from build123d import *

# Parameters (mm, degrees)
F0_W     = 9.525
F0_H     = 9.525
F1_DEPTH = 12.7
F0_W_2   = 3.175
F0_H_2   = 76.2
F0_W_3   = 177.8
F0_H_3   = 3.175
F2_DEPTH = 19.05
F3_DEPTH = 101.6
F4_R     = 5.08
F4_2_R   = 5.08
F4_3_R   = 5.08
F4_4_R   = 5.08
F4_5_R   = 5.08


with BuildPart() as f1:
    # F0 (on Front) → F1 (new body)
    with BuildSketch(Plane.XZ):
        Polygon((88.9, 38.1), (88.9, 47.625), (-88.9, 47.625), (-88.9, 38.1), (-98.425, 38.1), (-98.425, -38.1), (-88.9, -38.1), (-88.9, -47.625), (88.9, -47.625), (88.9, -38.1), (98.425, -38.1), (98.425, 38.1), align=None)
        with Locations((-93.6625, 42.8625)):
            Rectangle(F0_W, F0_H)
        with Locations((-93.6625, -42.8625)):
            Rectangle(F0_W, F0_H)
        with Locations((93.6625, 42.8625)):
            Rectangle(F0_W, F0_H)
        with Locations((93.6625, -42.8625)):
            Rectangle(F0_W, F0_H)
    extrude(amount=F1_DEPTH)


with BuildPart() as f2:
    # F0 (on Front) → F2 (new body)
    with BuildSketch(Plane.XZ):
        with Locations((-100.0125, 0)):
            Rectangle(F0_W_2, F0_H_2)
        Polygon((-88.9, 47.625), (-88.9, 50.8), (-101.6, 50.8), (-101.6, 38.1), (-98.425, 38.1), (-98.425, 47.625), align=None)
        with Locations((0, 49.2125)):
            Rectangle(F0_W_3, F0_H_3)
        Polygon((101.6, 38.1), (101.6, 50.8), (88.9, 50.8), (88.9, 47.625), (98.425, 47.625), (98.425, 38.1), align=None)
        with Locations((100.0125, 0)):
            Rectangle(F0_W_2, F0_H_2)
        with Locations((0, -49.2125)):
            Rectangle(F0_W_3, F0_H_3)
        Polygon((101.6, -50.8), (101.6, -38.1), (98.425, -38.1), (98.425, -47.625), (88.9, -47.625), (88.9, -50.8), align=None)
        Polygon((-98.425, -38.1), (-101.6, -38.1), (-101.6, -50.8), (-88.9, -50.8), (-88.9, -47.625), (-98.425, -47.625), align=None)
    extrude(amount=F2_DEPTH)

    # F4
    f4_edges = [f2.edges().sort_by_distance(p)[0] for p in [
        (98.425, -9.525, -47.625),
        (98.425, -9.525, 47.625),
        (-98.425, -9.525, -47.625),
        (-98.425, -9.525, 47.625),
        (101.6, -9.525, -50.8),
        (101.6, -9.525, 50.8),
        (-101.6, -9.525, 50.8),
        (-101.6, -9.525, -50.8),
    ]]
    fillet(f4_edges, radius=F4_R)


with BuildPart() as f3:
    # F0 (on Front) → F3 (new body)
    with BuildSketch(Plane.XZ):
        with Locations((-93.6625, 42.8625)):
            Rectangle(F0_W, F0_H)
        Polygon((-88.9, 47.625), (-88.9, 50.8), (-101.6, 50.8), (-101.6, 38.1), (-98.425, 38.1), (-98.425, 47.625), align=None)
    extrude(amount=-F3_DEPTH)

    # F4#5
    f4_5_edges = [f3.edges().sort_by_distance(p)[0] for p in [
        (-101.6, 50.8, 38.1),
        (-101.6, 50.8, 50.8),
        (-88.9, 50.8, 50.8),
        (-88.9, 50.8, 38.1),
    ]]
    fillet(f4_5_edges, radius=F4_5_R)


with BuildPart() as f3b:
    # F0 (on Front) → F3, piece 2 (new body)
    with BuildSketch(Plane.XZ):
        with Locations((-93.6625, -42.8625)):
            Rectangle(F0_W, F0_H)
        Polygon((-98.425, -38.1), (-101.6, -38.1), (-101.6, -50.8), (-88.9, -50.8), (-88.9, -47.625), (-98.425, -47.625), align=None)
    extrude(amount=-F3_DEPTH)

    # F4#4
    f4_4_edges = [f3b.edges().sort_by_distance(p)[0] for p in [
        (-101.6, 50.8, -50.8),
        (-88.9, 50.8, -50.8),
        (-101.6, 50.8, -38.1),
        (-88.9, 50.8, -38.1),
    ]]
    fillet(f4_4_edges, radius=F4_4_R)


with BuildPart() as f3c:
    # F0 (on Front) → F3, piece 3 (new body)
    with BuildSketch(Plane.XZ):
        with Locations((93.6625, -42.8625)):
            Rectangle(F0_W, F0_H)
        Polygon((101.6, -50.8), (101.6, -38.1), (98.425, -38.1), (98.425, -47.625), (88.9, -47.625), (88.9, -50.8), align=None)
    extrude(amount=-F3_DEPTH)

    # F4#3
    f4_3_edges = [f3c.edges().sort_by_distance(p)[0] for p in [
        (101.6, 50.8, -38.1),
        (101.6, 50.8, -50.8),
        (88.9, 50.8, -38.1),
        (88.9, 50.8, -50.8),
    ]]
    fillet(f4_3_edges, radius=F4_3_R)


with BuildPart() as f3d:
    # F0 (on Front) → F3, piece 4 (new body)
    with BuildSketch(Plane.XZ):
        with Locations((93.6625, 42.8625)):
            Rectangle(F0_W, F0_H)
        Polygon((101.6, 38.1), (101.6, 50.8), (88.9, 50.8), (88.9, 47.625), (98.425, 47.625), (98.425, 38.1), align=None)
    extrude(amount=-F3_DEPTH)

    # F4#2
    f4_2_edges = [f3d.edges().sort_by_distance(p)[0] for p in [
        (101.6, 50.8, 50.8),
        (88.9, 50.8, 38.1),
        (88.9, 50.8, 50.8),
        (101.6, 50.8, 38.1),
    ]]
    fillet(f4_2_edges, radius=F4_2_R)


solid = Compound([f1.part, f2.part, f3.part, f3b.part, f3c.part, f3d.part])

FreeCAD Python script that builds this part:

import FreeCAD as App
import Part
import Sketcher

V = App.Vector
Q = App.Units.Quantity


def edges_at(feature, points):
    """Names of the edges that pass closest to the given points."""
    edges = feature.Shape.Edges
    near = lambda p: min(range(len(edges)), key=lambda i: edges[i].distToShape(Part.Vertex(*p))[0])
    return sorted({f"Edge{near(p) + 1}" for p in points})

doc = App.newDocument("Part")
body = doc.addObject("PartDesign::Body", "Body")

sketch1 = body.newObject("Sketcher::SketchObject", "Sketch")
sketch1.AttachmentSupport = (doc.getObject("XZ_Plane"), [""])
sketch1.MapMode = "FlatFace"
sketch1.addGeometry(Part.LineSegment(V(-98, 48, 0), V(-98, -48, 0)), False)
sketch1.addGeometry(Part.LineSegment(V(-98, -48, 0), V(98, -48, 0)), False)
sketch1.addGeometry(Part.LineSegment(V(98, -48, 0), V(98, 48, 0)), False)
sketch1.addGeometry(Part.LineSegment(V(98, 48, 0), V(-98, 48, 0)), False)
sketch1.addConstraint(Sketcher.Constraint("Coincident", 0, 2, 1, 1))
sketch1.addConstraint(Sketcher.Constraint("Coincident", 1, 2, 2, 1))
sketch1.addConstraint(Sketcher.Constraint("Coincident", 2, 2, 3, 1))
sketch1.addConstraint(Sketcher.Constraint("Coincident", 3, 2, 0, 1))
sketch1.addConstraint(Sketcher.Constraint("Vertical", 0))
sketch1.addConstraint(Sketcher.Constraint("Horizontal", 1))
sketch1.addConstraint(Sketcher.Constraint("Vertical", 2))
sketch1.addConstraint(Sketcher.Constraint("Horizontal", 3))
sketch1.addConstraint(Sketcher.Constraint("Symmetric", 0, 2, 2, 2, -1, 1))
sketch1.addConstraint(Sketcher.Constraint("DistanceX", 1, 1, 1, 2, Q("7.75 in")))
sketch1.addConstraint(Sketcher.Constraint("DistanceY", 0, 2, 0, 1, Q("3.75 in")))
pad1 = body.newObject("PartDesign::Pad", "Pad")
pad1.Profile = sketch1
pad1.Length = Q("0.5 in")
body2 = doc.addObject("PartDesign::Body", "Body001")

sketch2 = body2.newObject("Sketcher::SketchObject", "Sketch001")
sketch2.AttachmentSupport = (doc.getObject("XZ_Plane001"), [""])
sketch2.MapMode = "FlatFace"
sketch2.addGeometry(Part.LineSegment(V(102, -51, 0), V(102, 51, 0)), False)
sketch2.addGeometry(Part.LineSegment(V(102, 51, 0), V(-102, 51, 0)), False)
sketch2.addGeometry(Part.LineSegment(V(-102, 51, 0), V(-102, -51, 0)), False)
sketch2.addGeometry(Part.LineSegment(V(-102, -51, 0), V(102, -51, 0)), False)
sketch2.addGeometry(Part.LineSegment(V(-98, 48, 0), V(98, 48, 0)), False)
sketch2.addGeometry(Part.LineSegment(V(98, 48, 0), V(98, -48, 0)), False)
sketch2.addGeometry(Part.LineSegment(V(98, -48, 0), V(-98, -48, 0)), False)
sketch2.addGeometry(Part.LineSegment(V(-98, -48, 0), V(-98, 48, 0)), False)
sketch2.addConstraint(Sketcher.Constraint("Coincident", 0, 2, 1, 1))
sketch2.addConstraint(Sketcher.Constraint("Coincident", 1, 2, 2, 1))
sketch2.addConstraint(Sketcher.Constraint("Coincident", 2, 2, 3, 1))
sketch2.addConstraint(Sketcher.Constraint("Coincident", 3, 2, 0, 1))
sketch2.addConstraint(Sketcher.Constraint("Coincident", 4, 2, 5, 1))
sketch2.addConstraint(Sketcher.Constraint("Coincident", 5, 2, 6, 1))
sketch2.addConstraint(Sketcher.Constraint("Coincident", 6, 2, 7, 1))
sketch2.addConstraint(Sketcher.Constraint("Coincident", 7, 2, 4, 1))
sketch2.addConstraint(Sketcher.Constraint("Vertical", 0))
sketch2.addConstraint(Sketcher.Constraint("Horizontal", 1))
sketch2.addConstraint(Sketcher.Constraint("Vertical", 2))
sketch2.addConstraint(Sketcher.Constraint("Horizontal", 3))
sketch2.addConstraint(Sketcher.Constraint("Horizontal", 4))
sketch2.addConstraint(Sketcher.Constraint("Vertical", 5))
sketch2.addConstraint(Sketcher.Constraint("Horizontal", 6))
sketch2.addConstraint(Sketcher.Constraint("Vertical", 7))
sketch2.addConstraint(Sketcher.Constraint("Symmetric", 0, 2, 2, 2, -1, 1))
sketch2.addConstraint(Sketcher.Constraint("Symmetric", 4, 2, 6, 2, -1, 1))
sketch2.addConstraint(Sketcher.Constraint("DistanceX", 1, 2, 1, 1, Q("8 in")))
sketch2.addConstraint(Sketcher.Constraint("DistanceY", 0, 1, 0, 2, Q("4 in")))
sketch2.addConstraint(Sketcher.Constraint("DistanceX", 4, 1, 4, 2, Q("7.75 in")))
sketch2.addConstraint(Sketcher.Constraint("DistanceY", 5, 2, 5, 1, Q("3.75 in")))
pad2 = body2.newObject("PartDesign::Pad", "Pad001")
pad2.Profile = sketch2
pad2.Length = Q("0.75 in")
doc.recompute()

fillet = body2.newObject("PartDesign::Fillet", "Fillet")
fillet.Base = (pad2, edges_at(pad2, [
    (98.425, -9.525, -47.625),
    (98.425, -9.525, 47.625),
    (-98.425, -9.525, -47.625),
    (-98.425, -9.525, 47.625),
    (101.6, -9.525, -50.8),
    (101.6, -9.525, 50.8),
    (-101.6, -9.525, 50.8),
    (-101.6, -9.525, -50.8),
]))
fillet.Radius = Q("0.2 in")
body3 = doc.addObject("PartDesign::Body", "Body002")

sketch3 = body3.newObject("Sketcher::SketchObject", "Sketch002")
sketch3.AttachmentSupport = (doc.getObject("XZ_Plane002"), [""])
sketch3.MapMode = "FlatFace"
sketch3.addGeometry(Part.LineSegment(V(-89, 38, 0), V(-89, 51, 0)), False)
sketch3.addGeometry(Part.LineSegment(V(-89, 51, 0), V(-102, 51, 0)), False)
sketch3.addGeometry(Part.LineSegment(V(-102, 51, 0), V(-102, 38, 0)), False)
sketch3.addGeometry(Part.LineSegment(V(-102, 38, 0), V(-89, 38, 0)), False)
sketch3.addConstraint(Sketcher.Constraint("Coincident", 0, 2, 1, 1))
sketch3.addConstraint(Sketcher.Constraint("Coincident", 1, 2, 2, 1))
sketch3.addConstraint(Sketcher.Constraint("Coincident", 2, 2, 3, 1))
sketch3.addConstraint(Sketcher.Constraint("Coincident", 3, 2, 0, 1))
sketch3.addConstraint(Sketcher.Constraint("Vertical", 0))
sketch3.addConstraint(Sketcher.Constraint("Horizontal", 1))
sketch3.addConstraint(Sketcher.Constraint("Vertical", 2))
sketch3.addConstraint(Sketcher.Constraint("Horizontal", 3))
sketch3.addConstraint(Sketcher.Constraint("Equal", 3, 0))
sketch3.addConstraint(Sketcher.Constraint("DistanceX", 1, 2, 1, 1, Q("0.5 in")))
sketch3.addConstraint(Sketcher.Constraint("DistanceY", -1, 1, 0, 2, Q("2 in")))
sketch3.addConstraint(Sketcher.Constraint("DistanceX", 1, 2, -1, 1, Q("4 in")))
pad3 = body3.newObject("PartDesign::Pad", "Pad002")
pad3.Profile = sketch3
pad3.Length = Q("4 in")
pad3.Reversed = True
doc.recompute()

fillet2 = body3.newObject("PartDesign::Fillet", "Fillet001")
fillet2.Base = (pad3, edges_at(pad3, [
    (-101.6, 50.8, 38.1),
    (-101.6, 50.8, 50.8),
    (-88.9, 50.8, 50.8),
    (-88.9, 50.8, 38.1),
]))
fillet2.Radius = Q("0.2 in")
body4 = doc.addObject("PartDesign::Body", "Body003")

sketch4 = body4.newObject("Sketcher::SketchObject", "Sketch003")
sketch4.AttachmentSupport = (doc.getObject("XZ_Plane003"), [""])
sketch4.MapMode = "FlatFace"
sketch4.addGeometry(Part.LineSegment(V(-89, -38, 0), V(-102, -38, 0)), False)
sketch4.addGeometry(Part.LineSegment(V(-102, -38, 0), V(-102, -51, 0)), False)
sketch4.addGeometry(Part.LineSegment(V(-102, -51, 0), V(-89, -51, 0)), False)
sketch4.addGeometry(Part.LineSegment(V(-89, -51, 0), V(-89, -38, 0)), False)
sketch4.addConstraint(Sketcher.Constraint("Coincident", 0, 2, 1, 1))
sketch4.addConstraint(Sketcher.Constraint("Coincident", 1, 2, 2, 1))
sketch4.addConstraint(Sketcher.Constraint("Coincident", 2, 2, 3, 1))
sketch4.addConstraint(Sketcher.Constraint("Coincident", 3, 2, 0, 1))
sketch4.addConstraint(Sketcher.Constraint("Horizontal", 0))
sketch4.addConstraint(Sketcher.Constraint("Vertical", 1))
sketch4.addConstraint(Sketcher.Constraint("Horizontal", 2))
sketch4.addConstraint(Sketcher.Constraint("Vertical", 3))
sketch4.addConstraint(Sketcher.Constraint("Equal", 2, 1))
sketch4.addConstraint(Sketcher.Constraint("DistanceX", 0, 2, 0, 1, Q("0.5 in")))
sketch4.addConstraint(Sketcher.Constraint("DistanceX", 0, 2, -1, 1, Q("4 in")))
sketch4.addConstraint(Sketcher.Constraint("DistanceY", 1, 2, -1, 1, Q("2 in")))
pad4 = body4.newObject("PartDesign::Pad", "Pad003")
pad4.Profile = sketch4
pad4.Length = Q("4 in")
pad4.Reversed = True
doc.recompute()

fillet3 = body4.newObject("PartDesign::Fillet", "Fillet002")
fillet3.Base = (pad4, edges_at(pad4, [
    (-101.6, 50.8, -50.8),
    (-88.9, 50.8, -50.8),
    (-101.6, 50.8, -38.1),
    (-88.9, 50.8, -38.1),
]))
fillet3.Radius = Q("0.2 in")
body5 = doc.addObject("PartDesign::Body", "Body004")

sketch5 = body5.newObject("Sketcher::SketchObject", "Sketch004")
sketch5.AttachmentSupport = (doc.getObject("XZ_Plane004"), [""])
sketch5.MapMode = "FlatFace"
sketch5.addGeometry(Part.LineSegment(V(89, -38, 0), V(89, -51, 0)), False)
sketch5.addGeometry(Part.LineSegment(V(89, -51, 0), V(102, -51, 0)), False)
sketch5.addGeometry(Part.LineSegment(V(102, -51, 0), V(102, -38, 0)), False)
sketch5.addGeometry(Part.LineSegment(V(102, -38, 0), V(89, -38, 0)), False)
sketch5.addConstraint(Sketcher.Constraint("Coincident", 0, 2, 1, 1))
sketch5.addConstraint(Sketcher.Constraint("Coincident", 1, 2, 2, 1))
sketch5.addConstraint(Sketcher.Constraint("Coincident", 2, 2, 3, 1))
sketch5.addConstraint(Sketcher.Constraint("Coincident", 3, 2, 0, 1))
sketch5.addConstraint(Sketcher.Constraint("Vertical", 0))
sketch5.addConstraint(Sketcher.Constraint("Horizontal", 1))
sketch5.addConstraint(Sketcher.Constraint("Vertical", 2))
sketch5.addConstraint(Sketcher.Constraint("Horizontal", 3))
sketch5.addConstraint(Sketcher.Constraint("Equal", 3, 0))
sketch5.addConstraint(Sketcher.Constraint("DistanceX", 1, 1, 1, 2, Q("0.5 in")))
sketch5.addConstraint(Sketcher.Constraint("DistanceY", 0, 2, -1, 1, Q("2 in")))
sketch5.addConstraint(Sketcher.Constraint("DistanceX", -1, 1, 1, 2, Q("4 in")))
pad5 = body5.newObject("PartDesign::Pad", "Pad004")
pad5.Profile = sketch5
pad5.Length = Q("4 in")
pad5.Reversed = True
doc.recompute()

fillet4 = body5.newObject("PartDesign::Fillet", "Fillet003")
fillet4.Base = (pad5, edges_at(pad5, [
    (101.6, 50.8, -38.1),
    (101.6, 50.8, -50.8),
    (88.9, 50.8, -38.1),
    (88.9, 50.8, -50.8),
]))
fillet4.Radius = Q("0.2 in")
body6 = doc.addObject("PartDesign::Body", "Body005")

sketch6 = body6.newObject("Sketcher::SketchObject", "Sketch005")
sketch6.AttachmentSupport = (doc.getObject("XZ_Plane005"), [""])
sketch6.MapMode = "FlatFace"
sketch6.addGeometry(Part.LineSegment(V(89, 38, 0), V(102, 38, 0)), False)
sketch6.addGeometry(Part.LineSegment(V(102, 38, 0), V(102, 51, 0)), False)
sketch6.addGeometry(Part.LineSegment(V(102, 51, 0), V(89, 51, 0)), False)
sketch6.addGeometry(Part.LineSegment(V(89, 51, 0), V(89, 38, 0)), False)
sketch6.addConstraint(Sketcher.Constraint("Coincident", 0, 2, 1, 1))
sketch6.addConstraint(Sketcher.Constraint("Coincident", 1, 2, 2, 1))
sketch6.addConstraint(Sketcher.Constraint("Coincident", 2, 2, 3, 1))
sketch6.addConstraint(Sketcher.Constraint("Coincident", 3, 2, 0, 1))
sketch6.addConstraint(Sketcher.Constraint("Horizontal", 0))
sketch6.addConstraint(Sketcher.Constraint("Vertical", 1))
sketch6.addConstraint(Sketcher.Constraint("Horizontal", 2))
sketch6.addConstraint(Sketcher.Constraint("Vertical", 3))
sketch6.addConstraint(Sketcher.Constraint("Equal", 2, 1))
sketch6.addConstraint(Sketcher.Constraint("DistanceX", 0, 1, 0, 2, Q("0.5 in")))
sketch6.addConstraint(Sketcher.Constraint("DistanceX", -1, 1, 0, 2, Q("4 in")))
sketch6.addConstraint(Sketcher.Constraint("DistanceY", -1, 1, 1, 2, Q("2 in")))
pad6 = body6.newObject("PartDesign::Pad", "Pad005")
pad6.Profile = sketch6
pad6.Length = Q("4 in")
pad6.Reversed = True
doc.recompute()

fillet5 = body6.newObject("PartDesign::Fillet", "Fillet004")
fillet5.Base = (pad6, edges_at(pad6, [
    (101.6, 50.8, 50.8),
    (88.9, 50.8, 38.1),
    (88.9, 50.8, 50.8),
    (101.6, 50.8, 38.1),
]))
fillet5.Radius = Q("0.2 in")

doc.recompute()
